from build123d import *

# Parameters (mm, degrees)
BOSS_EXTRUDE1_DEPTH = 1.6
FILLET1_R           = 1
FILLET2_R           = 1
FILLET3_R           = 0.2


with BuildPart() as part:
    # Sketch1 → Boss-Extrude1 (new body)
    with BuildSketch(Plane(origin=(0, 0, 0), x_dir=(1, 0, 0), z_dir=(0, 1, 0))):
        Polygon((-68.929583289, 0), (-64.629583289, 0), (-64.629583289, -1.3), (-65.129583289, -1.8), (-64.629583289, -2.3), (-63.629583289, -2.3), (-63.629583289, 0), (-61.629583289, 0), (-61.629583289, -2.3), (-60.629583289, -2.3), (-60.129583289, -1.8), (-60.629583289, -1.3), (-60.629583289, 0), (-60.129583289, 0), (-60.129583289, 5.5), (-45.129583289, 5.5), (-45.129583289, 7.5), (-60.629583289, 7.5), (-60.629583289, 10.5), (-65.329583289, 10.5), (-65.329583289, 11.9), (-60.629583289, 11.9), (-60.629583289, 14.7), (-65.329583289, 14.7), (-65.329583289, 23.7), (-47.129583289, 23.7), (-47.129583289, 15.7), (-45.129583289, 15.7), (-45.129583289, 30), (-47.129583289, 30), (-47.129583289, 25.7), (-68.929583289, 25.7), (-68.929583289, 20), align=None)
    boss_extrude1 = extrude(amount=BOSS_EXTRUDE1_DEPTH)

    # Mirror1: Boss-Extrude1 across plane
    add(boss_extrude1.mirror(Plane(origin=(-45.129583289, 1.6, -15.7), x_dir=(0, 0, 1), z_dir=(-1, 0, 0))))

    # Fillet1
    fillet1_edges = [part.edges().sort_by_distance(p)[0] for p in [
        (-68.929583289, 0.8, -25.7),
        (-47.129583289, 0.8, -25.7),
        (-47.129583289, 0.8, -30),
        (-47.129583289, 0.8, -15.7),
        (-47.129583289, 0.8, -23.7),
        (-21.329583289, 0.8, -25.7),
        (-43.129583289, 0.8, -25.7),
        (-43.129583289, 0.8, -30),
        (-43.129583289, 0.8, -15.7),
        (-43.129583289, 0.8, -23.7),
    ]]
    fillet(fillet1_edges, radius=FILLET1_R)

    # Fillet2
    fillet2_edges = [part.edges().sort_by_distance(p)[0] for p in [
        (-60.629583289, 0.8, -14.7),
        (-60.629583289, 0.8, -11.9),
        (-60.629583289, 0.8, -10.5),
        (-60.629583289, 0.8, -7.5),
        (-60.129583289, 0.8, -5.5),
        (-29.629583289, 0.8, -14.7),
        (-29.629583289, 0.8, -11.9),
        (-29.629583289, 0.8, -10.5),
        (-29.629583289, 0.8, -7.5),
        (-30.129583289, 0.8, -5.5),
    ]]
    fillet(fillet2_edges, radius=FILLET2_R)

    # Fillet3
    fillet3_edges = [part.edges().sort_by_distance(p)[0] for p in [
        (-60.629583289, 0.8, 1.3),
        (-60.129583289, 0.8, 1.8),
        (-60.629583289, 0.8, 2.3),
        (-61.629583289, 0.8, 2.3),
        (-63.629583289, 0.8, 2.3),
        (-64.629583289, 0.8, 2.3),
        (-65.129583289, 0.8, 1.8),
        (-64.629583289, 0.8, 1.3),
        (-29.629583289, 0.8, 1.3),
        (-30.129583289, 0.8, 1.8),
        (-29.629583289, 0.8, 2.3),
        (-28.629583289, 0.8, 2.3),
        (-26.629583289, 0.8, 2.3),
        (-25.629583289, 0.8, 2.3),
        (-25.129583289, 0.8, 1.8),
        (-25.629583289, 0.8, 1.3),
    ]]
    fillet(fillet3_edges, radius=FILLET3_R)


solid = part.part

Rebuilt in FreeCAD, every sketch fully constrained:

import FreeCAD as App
import Part
import Sketcher

V = App.Vector
Q = App.Units.Quantity


def edges_at(feature, points):
    """Names of the edges that pass closest to the given points."""
    edges = feature.Shape.Edges
    near = lambda p: min(range(len(edges)), key=lambda i: edges[i].distToShape(Part.Vertex(*p))[0])
    return sorted({f"Edge{near(p) + 1}" for p in points})

doc = App.newDocument("Part")
params = doc.addObject("Spreadsheet::Sheet", "Params")
for row, (alias, value) in enumerate([
    ("sketch1_width", "1 mm"),
    ("sketch1_width2", "2 mm"),
    ("sketch1_width3", "15 mm"),
    ("sketch1_height", "3 mm"),
    ("sketch1_height2", "9 mm"),
    ("pad1_length", "1.6 mm"),
    ("fillet_radius", "1 mm"),
    ("fillet2_radius", "1 mm"),
    ("fillet3_radius", "0.2 mm"),
], start=1):
    params.set(f"A{row}", alias)
    params.set(f"B{row}", "=" + value)
    params.setAlias(f"B{row}", alias)

body = doc.addObject("PartDesign::Body", "Body")

# Sketch on XZ plane
sketch1 = doc.addObject("Sketcher::SketchObject", "Sketch")
body.addObject(sketch1)
sketch1.AttachmentSupport = (doc.XZ_Plane, [""])
sketch1.MapMode = "FlatFace"
sketch1.addGeometry([
    Part.LineSegment(V(-68.9, 0, 0), V(-64.6, 0, 0)),  # 0
    Part.LineSegment(V(-64.6, 0, 0), V(-64.6, 1.3, 0)),  # 1
    Part.LineSegment(V(-64.6, 1.3, 0), V(-65.1, 1.8, 0)),  # 2
    Part.LineSegment(V(-65.1, 1.8, 0), V(-64.6, 2.3, 0)),  # 3
    Part.LineSegment(V(-64.6, 2.3, 0), V(-63.6, 2.3, 0)),  # 4
    Part.LineSegment(V(-63.6, 2.3, 0), V(-63.6, 0, 0)),  # 5
    Part.LineSegment(V(-63.6, 0, 0), V(-61.6, 0, 0)),  # 6
    Part.LineSegment(V(-61.6, 0, 0), V(-61.6, 2.3, 0)),  # 7
    Part.LineSegment(V(-61.6, 2.3, 0), V(-60.6, 2.3, 0)),  # 8
    Part.LineSegment(V(-60.6, 2.3, 0), V(-60.1, 1.8, 0)),  # 9
    Part.LineSegment(V(-60.1, 1.8, 0), V(-60.6, 1.3, 0)),  # 10
    Part.LineSegment(V(-60.6, 1.3, 0), V(-60.6, 0, 0)),  # 11
    Part.LineSegment(V(-60.6, 0, 0), V(-60.1, 0, 0)),  # 12
    Part.LineSegment(V(-60.1, 0, 0), V(-60.1, -5.5, 0)),  # 13
    Part.LineSegment(V(-60.1, -5.5, 0), V(-45.1, -5.5, 0)),  # 14
    Part.LineSegment(V(-45.1, -5.5, 0), V(-45.1, -7.5, 0)),  # 15
    Part.LineSegment(V(-45.1, -7.5, 0), V(-60.6, -7.5, 0)),  # 16
    Part.LineSegment(V(-60.6, -7.5, 0), V(-60.6, -10.5, 0)),  # 17
    Part.LineSegment(V(-60.6, -10.5, 0), V(-65.3, -10.5, 0)),  # 18
    Part.LineSegment(V(-65.3, -10.5, 0), V(-65.3, -11.9, 0)),  # 19
    Part.LineSegment(V(-65.3, -11.9, 0), V(-60.6, -11.9, 0)),  # 20
    Part.LineSegment(V(-60.6, -11.9, 0), V(-60.6, -14.7, 0)),  # 21
    Part.LineSegment(V(-60.6, -14.7, 0), V(-65.3, -14.7, 0)),  # 22
    Part.LineSegment(V(-65.3, -14.7, 0), V(-65.3, -23.7, 0)),  # 23
    Part.LineSegment(V(-65.3, -23.7, 0), V(-47.1, -23.7, 0)),  # 24
    Part.LineSegment(V(-47.1, -23.7, 0), V(-47.1, -15.7, 0)),  # 25
    Part.LineSegment(V(-47.1, -15.7, 0), V(-45.1, -15.7, 0)),  # 26
    Part.LineSegment(V(-45.1, -15.7, 0), V(-45.1, -30, 0)),  # 27
    Part.LineSegment(V(-45.1, -30, 0), V(-47.1, -30, 0)),  # 28
    Part.LineSegment(V(-47.1, -30, 0), V(-47.1, -25.7, 0)),  # 29
    Part.LineSegment(V(-47.1, -25.7, 0), V(-68.9, -25.7, 0)),  # 30
    Part.LineSegment(V(-68.9, -25.7, 0), V(-68.9, 0, 0)),  # 31
], False)
sketch1.addConstraint([
    Sketcher.Constraint("Coincident", 0, 2, 1, 1),
    Sketcher.Constraint("Coincident", 1, 2, 2, 1),
    Sketcher.Constraint("Coincident", 2, 2, 3, 1),
    Sketcher.Constraint("Coincident", 3, 2, 4, 1),
    Sketcher.Constraint("Coincident", 4, 2, 5, 1),
    Sketcher.Constraint("Coincident", 5, 2, 6, 1),
    Sketcher.Constraint("Coincident", 6, 2, 7, 1),
    Sketcher.Constraint("Coincident", 7, 2, 8, 1),
    Sketcher.Constraint("Coincident", 8, 2, 9, 1),
    Sketcher.Constraint("Coincident", 9, 2, 10, 1),
    Sketcher.Constraint("Coincident", 10, 2, 11, 1),
    Sketcher.Constraint("Coincident", 11, 2, 12, 1),
    Sketcher.Constraint("Coincident", 12, 2, 13, 1),
    Sketcher.Constraint("Coincident", 13, 2, 14, 1),
    Sketcher.Constraint("Coincident", 14, 2, 15, 1),
    Sketcher.Constraint("Coincident", 15, 2, 16, 1),
    Sketcher.Constraint("Coincident", 16, 2, 17, 1),
    Sketcher.Constraint("Coincident", 17, 2, 18, 1),
    Sketcher.Constraint("Coincident", 18, 2, 19, 1),
    Sketcher.Constraint("Coincident", 19, 2, 20, 1),
    Sketcher.Constraint("Coincident", 20, 2, 21, 1),
    Sketcher.Constraint("Coincident", 21, 2, 22, 1),
    Sketcher.Constraint("Coincident", 22, 2, 23, 1),
    Sketcher.Constraint("Coincident", 23, 2, 24, 1),
    Sketcher.Constraint("Coincident", 24, 2, 25, 1),
    Sketcher.Constraint("Coincident", 25, 2, 26, 1),
    Sketcher.Constraint("Coincident", 26, 2, 27, 1),
    Sketcher.Constraint("Coincident", 27, 2, 28, 1),
    Sketcher.Constraint("Coincident", 28, 2, 29, 1),
    Sketcher.Constraint("Coincident", 29, 2, 30, 1),
    Sketcher.Constraint("Coincident", 30, 2, 31, 1),
    Sketcher.Constraint("Coincident", 31, 2, 0, 1),
    Sketcher.Constraint("Horizontal", 0),
    Sketcher.Constraint("Vertical", 1),
    Sketcher.Constraint("Horizontal", 4),
    Sketcher.Constraint("Vertical", 5),
    Sketcher.Constraint("Horizontal", 6),
    Sketcher.Constraint("Vertical", 7),
    Sketcher.Constraint("Horizontal", 8),
    Sketcher.Constraint("Vertical", 11),
    Sketcher.Constraint("Horizontal", 12),
    Sketcher.Constraint("Vertical", 13),
    Sketcher.Constraint("Horizontal", 14),
    Sketcher.Constraint("Vertical", 15),
    Sketcher.Constraint("Horizontal", 16),
    Sketcher.Constraint("Vertical", 17),
    Sketcher.Constraint("Horizontal", 18),
    Sketcher.Constraint("Vertical", 19),
    Sketcher.Constraint("Horizontal", 20),
    Sketcher.Constraint("Vertical", 21),
    Sketcher.Constraint("Horizontal", 22),
    Sketcher.Constraint("Vertical", 23),
    Sketcher.Constraint("Horizontal", 24),
    Sketcher.Constraint("Vertical", 25),
    Sketcher.Constraint("Horizontal", 26),
    Sketcher.Constraint("Vertical", 27),
    Sketcher.Constraint("Horizontal", 28),
    Sketcher.Constraint("Vertical", 29),
    Sketcher.Constraint("Horizontal", 30),
    Sketcher.Constraint("Vertical", 31),
    Sketcher.Constraint("PointOnObject", 0, 2, -1),
    Sketcher.Constraint("PointOnObject", 5, 2, -1),
    Sketcher.Constraint("PointOnObject", 11, 2, -1),
    Sketcher.Constraint("Perpendicular", 2, 3),
    Sketcher.Constraint("Perpendicular", 3, 9),
    Sketcher.Constraint("Perpendicular", 9, 10),
    Sketcher.Constraint("Horizontal", 4, 2, 7, 2),
    Sketcher.Constraint("Horizontal", 2, 2, 9, 2),
    Sketcher.Constraint("Horizontal", 1, 2, 10, 2),
    Sketcher.Constraint("Vertical", 1, 2, 3, 2),
    Sketcher.Constraint("Vertical", 8, 2, 10, 2),
    Sketcher.Constraint("Vertical", 9, 2, 12, 2),
    Sketcher.Constraint("Vertical", 11, 2, 16, 2),
    Sketcher.Constraint("Vertical", 17, 2, 20, 2),
    Sketcher.Constraint("Vertical", 19, 2, 22, 2),
    Sketcher.Constraint("Vertical", 15, 2, 26, 2),
    Sketcher.Constraint("Vertical", 25, 2, 28, 2),
    Sketcher.Constraint("Equal", 4, 8),
    Sketcher.Constraint("Equal", 6, 26),
    Sketcher.Constraint("Equal", 28, 15),
    Sketcher.Constraint("Equal", 0, 29),
    Sketcher.Constraint("DistanceX", 4, 1, 4, 2, Q("1 mm")),
    Sketcher.Constraint("DistanceX", 6, 1, 6, 2, Q("2 mm")),
    Sketcher.Constraint("DistanceX", 14, 1, 14, 2, Q("15 mm")),
    Sketcher.Constraint("DistanceY", 17, 2, 17, 1, Q("3 mm")),
    Sketcher.Constraint("DistanceY", 23, 2, 23, 1, Q("9 mm")),
    Sketcher.Constraint("DistanceY", 25, 1, 25, 2, Q("8 mm")),
    Sketcher.Constraint("DistanceX", 0, 1, 0, 2, Q("4.3 mm")),
    Sketcher.Constraint("DistanceX", 12, 1, 12, 2, Q("0.5 mm")),
    Sketcher.Constraint("DistanceX", 18, 2, 18, 1, Q("4.7 mm")),
    Sketcher.Constraint("DistanceY", 1, 1, 1, 2, Q("1.3 mm")),
    Sketcher.Constraint("DistanceY", 13, 2, 13, 1, Q("5.5 mm")),
    Sketcher.Constraint("DistanceY", 19, 2, 19, 1, Q("1.4 mm")),
    Sketcher.Constraint("DistanceY", 21, 2, 21, 1, Q("2.8 mm")),
    Sketcher.Constraint("DistanceY", 27, 2, 27, 1, Q("14.3 mm")),
    Sketcher.Constraint("DistanceX", 0, 2, -1, 1, Q("64.629583 mm")),
])
sketch1.setExpression("Constraints[81]", "Params.sketch1_width")
sketch1.setExpression("Constraints[82]", "Params.sketch1_width2")
sketch1.setExpression("Constraints[83]", "Params.sketch1_width3")
sketch1.setExpression("Constraints[84]", "Params.sketch1_height")
sketch1.setExpression("Constraints[85]", "Params.sketch1_height2")
pad1 = doc.addObject("PartDesign::Pad", "Pad")
body.addObject(pad1)
pad1.Profile = sketch1
pad1.setExpression("Length", "Params.pad1_length")
pad1.Reversed = True
doc.recompute()

datumplane = doc.addObject("PartDesign::Plane", "DatumPlane")
body.addObject(datumplane)
datumplane.AttachmentSupport = (doc.YZ_Plane, [""])
datumplane.MapMode = "FlatFace"
datumplane.AttachmentOffset = App.Placement(V(0, 0, -45.129583), App.Rotation())
mirrored = doc.addObject("PartDesign::Mirrored", "Mirrored")
body.addObject(mirrored)
mirrored.Originals = [pad1]
mirrored.MirrorPlane = (datumplane, [""])
body.Tip = mirrored
doc.recompute()

fillet = doc.addObject("PartDesign::Fillet", "Fillet")
body.addObject(fillet)
fillet.Base = (mirrored, edges_at(mirrored, [
    (-68.93, 0.8, -25.7),
    (-47.13, 0.8, -25.7),
    (-47.13, 0.8, -30),
    (-47.13, 0.8, -15.7),
    (-47.13, 0.8, -23.7),
    (-21.33, 0.8, -25.7),
    (-43.13, 0.8, -25.7),
    (-43.13, 0.8, -30),
    (-43.13, 0.8, -15.7),
    (-43.13, 0.8, -23.7),
]))
fillet.setExpression("Radius", "Params.fillet_radius")
doc.recompute()

fillet2 = doc.addObject("PartDesign::Fillet", "Fillet001")
body.addObject(fillet2)
fillet2.Base = (fillet, edges_at(fillet, [
    (-60.63, 0.8, -14.7),
    (-60.63, 0.8, -11.9),
    (-60.63, 0.8, -10.5),
    (-60.63, 0.8, -7.5),
    (-60.13, 0.8, -5.5),
    (-29.63, 0.8, -14.7),
    (-29.63, 0.8, -11.9),
    (-29.63, 0.8, -10.5),
    (-29.63, 0.8, -7.5),
    (-30.13, 0.8, -5.5),
]))
fillet2.setExpression("Radius", "Params.fillet2_radius")
doc.recompute()

fillet3 = doc.addObject("PartDesign::Fillet", "Fillet002")
body.addObject(fillet3)
fillet3.Base = (fillet2, edges_at(fillet2, [
    (-60.63, 0.8, 1.3),
    (-60.13, 0.8, 1.8),
    (-60.63, 0.8, 2.3),
    (-61.63, 0.8, 2.3),
    (-63.63, 0.8, 2.3),
    (-64.63, 0.8, 2.3),
    (-65.13, 0.8, 1.8),
    (-64.63, 0.8, 1.3),
    (-29.63, 0.8, 1.3),
    (-30.13, 0.8, 1.8),
    (-29.63, 0.8, 2.3),
    (-28.63, 0.8, 2.3),
    (-26.63, 0.8, 2.3),
    (-25.63, 0.8, 2.3),
    (-25.13, 0.8, 1.8),
    (-25.63, 0.8, 1.3),
]))
fillet3.setExpression("Radius", "Params.fillet3_radius")

doc.recompute()
